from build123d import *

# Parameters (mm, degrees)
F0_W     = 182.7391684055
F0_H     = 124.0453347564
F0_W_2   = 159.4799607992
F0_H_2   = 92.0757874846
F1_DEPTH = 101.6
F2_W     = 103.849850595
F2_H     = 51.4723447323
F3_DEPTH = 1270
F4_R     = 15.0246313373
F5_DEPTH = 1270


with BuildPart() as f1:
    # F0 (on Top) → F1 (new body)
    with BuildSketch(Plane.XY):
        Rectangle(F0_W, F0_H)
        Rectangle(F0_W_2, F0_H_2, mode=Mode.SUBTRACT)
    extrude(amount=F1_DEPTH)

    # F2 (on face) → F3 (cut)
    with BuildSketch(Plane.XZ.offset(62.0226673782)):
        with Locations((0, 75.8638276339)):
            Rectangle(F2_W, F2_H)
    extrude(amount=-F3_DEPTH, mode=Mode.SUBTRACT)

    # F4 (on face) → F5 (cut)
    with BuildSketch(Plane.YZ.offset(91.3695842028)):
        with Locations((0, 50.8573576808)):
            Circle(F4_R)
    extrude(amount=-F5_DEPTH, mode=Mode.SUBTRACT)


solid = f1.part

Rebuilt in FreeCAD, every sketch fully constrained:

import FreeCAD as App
import Part
import Sketcher

V = App.Vector
Q = App.Units.Quantity


def add_polygon(sketch, points):
    """Adds a closed chain of lines whose ends are joined by coincident constraints."""
    first, n = sketch.GeometryCount, len(points)
    for a, b in zip(points, points[1:] + points[:1]):
        sketch.addGeometry(Part.LineSegment(App.Vector(*a, 0), App.Vector(*b, 0)), False)
    for i in range(n):
        sketch.addConstraint(Sketcher.Constraint("Coincident", first + i, 2, first + (i + 1) % n, 1))

doc = App.newDocument("Part")
body = doc.addObject("PartDesign::Body", "Body")

sketch1 = body.newObject("Sketcher::SketchObject", "Sketch")
sketch1.AttachmentSupport = (doc.getObject("XY_Plane"), [""])
sketch1.MapMode = "FlatFace"
add_polygon(sketch1, [(-91, 62), (-91, -62), (91, -62), (91, 62)])
add_polygon(sketch1, [(80, -46), (-80, -46), (-80, 46), (80, 46)])
sketch1.addConstraint([
    Sketcher.Constraint("Vertical", 0),
    Sketcher.Constraint("Horizontal", 1),
    Sketcher.Constraint("Vertical", 2),
    Sketcher.Constraint("Horizontal", 3),
    Sketcher.Constraint("Horizontal", 4),
    Sketcher.Constraint("Vertical", 5),
    Sketcher.Constraint("Horizontal", 6),
    Sketcher.Constraint("Vertical", 7),
    Sketcher.Constraint("Symmetric", 0, 2, 2, 2, -1, 1),
    Sketcher.Constraint("Symmetric", 4, 2, 6, 2, -1, 1),
    Sketcher.Constraint("DistanceX", 1, 1, 1, 2, 182.739168),
    Sketcher.Constraint("DistanceX", 4, 2, 4, 1, 159.479961),
    Sketcher.Constraint("DistanceY", 0, 2, 0, 1, 124.045335),
    Sketcher.Constraint("DistanceY", 5, 1, 5, 2, 92.075787),
])
pad1 = body.newObject("PartDesign::Pad", "Pad")
pad1.Profile = sketch1
pad1.Length = Q("4 in")

sketch2 = body.newObject("Sketcher::SketchObject", "Sketch001")
sketch2.AttachmentSupport = (doc.getObject("XZ_Plane"), [""])
sketch2.MapMode = "FlatFace"
sketch2.AttachmentOffset = App.Placement(V(0, 0, 62.022667), App.Rotation())
add_polygon(sketch2, [(-52, 102), (-52, 50), (52, 50), (52, 102)])
sketch2.addConstraint([
    Sketcher.Constraint("Vertical", 0),
    Sketcher.Constraint("Horizontal", 1),
    Sketcher.Constraint("Vertical", 2),
    Sketcher.Constraint("Horizontal", 3),
    Sketcher.Constraint("DistanceY", -1, 1, 2, 2, Q("4 in")),
    Sketcher.Constraint("DistanceX", 1, 1, 1, 2, 103.849851),
    Sketcher.Constraint("DistanceY", 0, 2, 0, 1, 51.472345),
    Sketcher.Constraint("DistanceX", 0, 2, -1, 1, 51.924925),
])
pocket1 = body.newObject("PartDesign::Pocket", "Pocket")
pocket1.Profile = sketch2
pocket1.Length = Q("50 in")

sketch3 = body.newObject("Sketcher::SketchObject", "Sketch002")
sketch3.AttachmentSupport = (doc.getObject("YZ_Plane"), [""])
sketch3.MapMode = "FlatFace"
sketch3.AttachmentOffset = App.Placement(V(0, 0, 91.369584), App.Rotation())
sketch3.addGeometry(Part.Circle(V(0, 51, 0), V(0, 0, 1), 15), False)
sketch3.addConstraint([
    Sketcher.Constraint("PointOnObject", 0, 3, -2),
    Sketcher.Constraint("Diameter", 0, 30.049263),
    Sketcher.Constraint("DistanceY", -1, 1, 0, 3, 50.857358),
])
pocket2 = body.newObject("PartDesign::Pocket", "Pocket001")
pocket2.Profile = sketch3
pocket2.Length = Q("50 in")

doc.recompute()
